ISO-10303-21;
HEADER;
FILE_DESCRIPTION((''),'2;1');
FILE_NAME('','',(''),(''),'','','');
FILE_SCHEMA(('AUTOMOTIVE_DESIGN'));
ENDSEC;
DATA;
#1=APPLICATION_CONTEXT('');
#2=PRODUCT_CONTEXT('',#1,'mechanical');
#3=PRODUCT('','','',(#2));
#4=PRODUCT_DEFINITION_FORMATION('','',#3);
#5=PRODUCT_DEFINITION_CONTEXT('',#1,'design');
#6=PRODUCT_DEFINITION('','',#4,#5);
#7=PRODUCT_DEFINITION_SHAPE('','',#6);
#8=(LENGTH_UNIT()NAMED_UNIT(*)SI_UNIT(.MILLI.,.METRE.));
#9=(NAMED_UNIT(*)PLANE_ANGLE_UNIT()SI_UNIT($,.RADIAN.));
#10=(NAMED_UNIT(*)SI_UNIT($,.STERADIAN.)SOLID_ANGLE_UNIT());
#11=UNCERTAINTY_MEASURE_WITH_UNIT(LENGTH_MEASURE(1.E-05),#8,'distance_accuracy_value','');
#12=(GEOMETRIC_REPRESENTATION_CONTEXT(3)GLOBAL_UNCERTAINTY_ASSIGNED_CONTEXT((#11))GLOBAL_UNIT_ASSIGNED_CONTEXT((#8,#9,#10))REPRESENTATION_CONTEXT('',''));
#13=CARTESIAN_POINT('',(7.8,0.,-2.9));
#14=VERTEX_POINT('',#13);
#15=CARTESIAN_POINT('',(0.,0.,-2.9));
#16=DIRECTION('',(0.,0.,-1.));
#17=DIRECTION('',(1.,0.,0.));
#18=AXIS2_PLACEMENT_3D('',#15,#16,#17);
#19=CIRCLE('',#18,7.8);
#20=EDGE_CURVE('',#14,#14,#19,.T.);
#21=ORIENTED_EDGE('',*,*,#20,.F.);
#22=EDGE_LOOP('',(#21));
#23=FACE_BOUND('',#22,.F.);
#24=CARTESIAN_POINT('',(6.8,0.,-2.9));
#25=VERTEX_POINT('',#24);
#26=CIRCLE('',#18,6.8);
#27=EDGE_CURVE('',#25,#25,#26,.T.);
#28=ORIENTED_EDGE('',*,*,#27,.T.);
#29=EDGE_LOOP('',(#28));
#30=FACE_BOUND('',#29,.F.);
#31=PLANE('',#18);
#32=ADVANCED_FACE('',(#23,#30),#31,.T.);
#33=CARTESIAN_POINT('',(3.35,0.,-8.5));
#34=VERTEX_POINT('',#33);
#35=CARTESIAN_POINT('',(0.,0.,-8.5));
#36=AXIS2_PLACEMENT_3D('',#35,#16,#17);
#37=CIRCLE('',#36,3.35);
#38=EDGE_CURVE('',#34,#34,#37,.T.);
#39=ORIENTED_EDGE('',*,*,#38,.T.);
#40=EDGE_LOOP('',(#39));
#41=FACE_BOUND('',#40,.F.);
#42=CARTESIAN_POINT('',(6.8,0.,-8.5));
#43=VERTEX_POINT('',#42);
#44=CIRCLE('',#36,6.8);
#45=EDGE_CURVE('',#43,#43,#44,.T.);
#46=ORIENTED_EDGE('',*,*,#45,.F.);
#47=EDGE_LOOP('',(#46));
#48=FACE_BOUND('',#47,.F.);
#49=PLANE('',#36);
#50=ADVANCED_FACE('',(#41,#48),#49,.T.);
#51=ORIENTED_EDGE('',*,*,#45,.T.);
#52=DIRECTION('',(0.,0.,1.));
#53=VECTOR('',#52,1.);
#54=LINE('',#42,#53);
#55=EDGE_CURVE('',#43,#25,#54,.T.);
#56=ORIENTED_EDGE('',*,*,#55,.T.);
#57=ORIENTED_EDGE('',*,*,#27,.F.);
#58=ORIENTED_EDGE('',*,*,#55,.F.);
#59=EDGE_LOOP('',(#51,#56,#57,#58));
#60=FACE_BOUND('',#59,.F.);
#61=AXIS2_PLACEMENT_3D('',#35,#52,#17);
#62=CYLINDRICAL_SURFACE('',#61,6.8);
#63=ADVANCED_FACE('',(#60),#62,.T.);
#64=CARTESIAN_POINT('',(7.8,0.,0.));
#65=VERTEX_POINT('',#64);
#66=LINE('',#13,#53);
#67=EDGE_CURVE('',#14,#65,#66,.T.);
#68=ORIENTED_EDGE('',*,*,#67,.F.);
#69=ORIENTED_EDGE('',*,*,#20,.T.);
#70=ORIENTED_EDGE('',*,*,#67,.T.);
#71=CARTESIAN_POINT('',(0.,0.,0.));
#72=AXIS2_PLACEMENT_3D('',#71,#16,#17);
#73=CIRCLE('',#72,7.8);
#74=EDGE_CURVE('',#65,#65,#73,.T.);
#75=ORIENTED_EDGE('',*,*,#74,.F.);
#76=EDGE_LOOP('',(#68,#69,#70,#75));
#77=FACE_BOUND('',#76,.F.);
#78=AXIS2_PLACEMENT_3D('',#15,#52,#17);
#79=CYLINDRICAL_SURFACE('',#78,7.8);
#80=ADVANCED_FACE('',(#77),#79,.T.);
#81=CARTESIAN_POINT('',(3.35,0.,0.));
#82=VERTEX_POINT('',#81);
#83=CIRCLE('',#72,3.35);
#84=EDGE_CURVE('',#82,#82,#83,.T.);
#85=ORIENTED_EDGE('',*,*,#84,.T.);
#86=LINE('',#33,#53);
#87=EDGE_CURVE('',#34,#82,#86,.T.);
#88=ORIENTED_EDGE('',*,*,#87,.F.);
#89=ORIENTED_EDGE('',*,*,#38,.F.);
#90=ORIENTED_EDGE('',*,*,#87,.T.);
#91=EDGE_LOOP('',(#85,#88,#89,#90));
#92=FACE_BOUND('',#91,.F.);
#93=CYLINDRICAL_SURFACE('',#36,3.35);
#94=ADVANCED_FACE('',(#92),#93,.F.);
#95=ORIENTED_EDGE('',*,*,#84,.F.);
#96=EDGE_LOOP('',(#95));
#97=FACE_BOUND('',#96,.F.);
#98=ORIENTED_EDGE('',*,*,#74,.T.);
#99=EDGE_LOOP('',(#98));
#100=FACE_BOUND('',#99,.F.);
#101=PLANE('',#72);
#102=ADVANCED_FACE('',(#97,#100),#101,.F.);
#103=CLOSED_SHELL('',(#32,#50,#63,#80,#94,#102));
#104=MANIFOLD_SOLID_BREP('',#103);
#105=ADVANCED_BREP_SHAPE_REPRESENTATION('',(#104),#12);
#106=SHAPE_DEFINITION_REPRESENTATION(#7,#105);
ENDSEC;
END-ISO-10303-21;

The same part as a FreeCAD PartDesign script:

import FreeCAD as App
import Part
import Sketcher

V = App.Vector
Q = App.Units.Quantity

doc = App.newDocument("Part")
params = doc.addObject("Spreadsheet::Sheet", "Params")
for row, (alias, value) in enumerate([
    ("sketch1_width", "1 mm"),
    ("sketch1_width2", "7.8 mm"),
    ("sketch1_height", "8.5 mm"),
    ("sketch1_height2", "5.6 mm"),
    ("revolution_angle", "360 deg"),
    ("sketch2_diameter", "6.7 mm"),
], start=1):
    params.set(f"A{row}", alias)
    params.set(f"B{row}", "=" + value)
    params.setAlias(f"B{row}", alias)

body = doc.addObject("PartDesign::Body", "Body")

# Sketch on XZ plane
sketch1 = body.newObject("Sketcher::SketchObject", "Sketch")
sketch1.AttachmentSupport = (doc.getObject("XZ_Plane"), [""])
sketch1.MapMode = "FlatFace"
sketch1.addGeometry([
    Part.LineSegment(V(7.8, 0, 0), V(0, 0, 0)),  # 0
    Part.LineSegment(V(0, 0, 0), V(0, -8.5, 0)),  # 1
    Part.LineSegment(V(0, -8.5, 0), V(6.8, -8.5, 0)),  # 2
    Part.LineSegment(V(6.8, -8.5, 0), V(6.8, -2.9, 0)),  # 3
    Part.LineSegment(V(6.8, -2.9, 0), V(7.8, -2.9, 0)),  # 4
    Part.LineSegment(V(7.8, -2.9, 0), V(7.8, 0, 0)),  # 5
], False)
sketch1.addConstraint([
    Sketcher.Constraint("Coincident", 0, 2, 1, 1),
    Sketcher.Constraint("Coincident", 1, 2, 2, 1),
    Sketcher.Constraint("Coincident", 2, 2, 3, 1),
    Sketcher.Constraint("Coincident", 3, 2, 4, 1),
    Sketcher.Constraint("Coincident", 4, 2, 5, 1),
    Sketcher.Constraint("Coincident", 5, 2, 0, 1),
    Sketcher.Constraint("Horizontal", 0),
    Sketcher.Constraint("Vertical", 1),
    Sketcher.Constraint("Horizontal", 2),
    Sketcher.Constraint("Vertical", 3),
    Sketcher.Constraint("Horizontal", 4),
    Sketcher.Constraint("Vertical", 5),
    Sketcher.Constraint("Coincident", 0, 2, -1, 1),
    Sketcher.Constraint("DistanceX", 4, 1, 4, 2, Q("1 mm")),
    Sketcher.Constraint("DistanceX", 0, 2, 0, 1, Q("7.8 mm")),
    Sketcher.Constraint("DistanceY", 1, 2, 1, 1, Q("8.5 mm")),
    Sketcher.Constraint("DistanceY", 3, 1, 3, 2, Q("5.6 mm")),
])
sketch1.setExpression("Constraints[13]", "Params.sketch1_width")
sketch1.setExpression("Constraints[14]", "Params.sketch1_width2")
sketch1.setExpression("Constraints[15]", "Params.sketch1_height")
sketch1.setExpression("Constraints[16]", "Params.sketch1_height2")
revolution = body.newObject("PartDesign::Revolution", "Revolution")
revolution.Profile = sketch1
revolution.ReferenceAxis = (sketch1, ["V_Axis"])
revolution.setExpression("Angle", "Params.revolution_angle")

# Sketch on XY plane
sketch2 = body.newObject("Sketcher::SketchObject", "Sketch001")
sketch2.AttachmentSupport = (doc.getObject("XY_Plane"), [""])
sketch2.MapMode = "FlatFace"
sketch2.AttachmentOffset = App.Placement(V(0, 0, -8.5), App.Rotation())
sketch2.addGeometry(Part.Circle(V(0, 0, 0), V(0, 0, 1), 3.4), False)
sketch2.addConstraint([
    Sketcher.Constraint("Coincident", 0, 3, -1, 1),
    Sketcher.Constraint("Diameter", 0, Q("6.7 mm")),
])
sketch2.setExpression("Constraints[1]", "Params.sketch2_diameter")
pocket1 = body.newObject("PartDesign::Pocket", "Pocket")
pocket1.Profile = sketch2
pocket1.Type = "ThroughAll"
pocket1.Reversed = True

doc.recompute()
